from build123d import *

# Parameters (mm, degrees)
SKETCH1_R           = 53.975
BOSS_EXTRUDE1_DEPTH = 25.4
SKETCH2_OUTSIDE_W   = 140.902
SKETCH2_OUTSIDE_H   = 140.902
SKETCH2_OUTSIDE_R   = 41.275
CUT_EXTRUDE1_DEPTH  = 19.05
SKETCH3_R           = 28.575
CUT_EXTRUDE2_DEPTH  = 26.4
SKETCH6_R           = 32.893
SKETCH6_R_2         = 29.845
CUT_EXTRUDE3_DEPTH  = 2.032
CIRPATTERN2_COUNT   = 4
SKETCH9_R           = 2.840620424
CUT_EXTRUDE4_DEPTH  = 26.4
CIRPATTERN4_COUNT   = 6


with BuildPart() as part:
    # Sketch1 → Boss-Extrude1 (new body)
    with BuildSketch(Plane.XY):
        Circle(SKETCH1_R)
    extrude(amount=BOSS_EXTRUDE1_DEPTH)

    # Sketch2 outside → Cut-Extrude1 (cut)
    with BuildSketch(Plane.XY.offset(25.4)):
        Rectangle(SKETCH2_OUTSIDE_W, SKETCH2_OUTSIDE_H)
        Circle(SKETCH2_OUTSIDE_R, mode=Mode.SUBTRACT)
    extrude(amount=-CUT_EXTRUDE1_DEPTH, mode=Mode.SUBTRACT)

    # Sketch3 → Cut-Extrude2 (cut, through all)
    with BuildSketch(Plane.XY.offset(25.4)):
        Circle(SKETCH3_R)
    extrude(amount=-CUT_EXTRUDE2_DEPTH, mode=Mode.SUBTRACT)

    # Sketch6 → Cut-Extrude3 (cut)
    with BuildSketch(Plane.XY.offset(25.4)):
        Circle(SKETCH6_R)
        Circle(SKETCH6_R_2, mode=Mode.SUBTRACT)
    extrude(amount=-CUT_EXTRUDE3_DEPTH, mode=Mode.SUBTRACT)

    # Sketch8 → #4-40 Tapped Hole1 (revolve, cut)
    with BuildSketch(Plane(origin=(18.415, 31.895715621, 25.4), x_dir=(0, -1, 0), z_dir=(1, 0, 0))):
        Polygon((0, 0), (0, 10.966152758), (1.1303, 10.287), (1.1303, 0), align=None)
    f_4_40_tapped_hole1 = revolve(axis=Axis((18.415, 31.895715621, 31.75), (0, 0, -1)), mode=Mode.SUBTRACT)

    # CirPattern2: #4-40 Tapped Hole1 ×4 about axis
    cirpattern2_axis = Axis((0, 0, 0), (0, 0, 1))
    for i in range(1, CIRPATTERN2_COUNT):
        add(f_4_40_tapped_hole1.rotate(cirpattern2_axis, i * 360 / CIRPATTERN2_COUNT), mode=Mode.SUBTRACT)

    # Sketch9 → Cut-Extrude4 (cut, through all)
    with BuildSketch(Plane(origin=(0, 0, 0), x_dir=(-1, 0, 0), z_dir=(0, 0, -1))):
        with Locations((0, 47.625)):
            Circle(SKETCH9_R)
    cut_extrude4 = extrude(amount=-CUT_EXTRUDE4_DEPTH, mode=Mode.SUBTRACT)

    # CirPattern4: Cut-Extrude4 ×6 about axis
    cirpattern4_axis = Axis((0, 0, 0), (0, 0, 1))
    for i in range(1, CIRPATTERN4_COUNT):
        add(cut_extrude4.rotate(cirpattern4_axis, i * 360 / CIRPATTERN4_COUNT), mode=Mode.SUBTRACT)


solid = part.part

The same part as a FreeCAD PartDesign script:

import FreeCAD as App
import Part
import Sketcher

V = App.Vector
Q = App.Units.Quantity


def add_polygon(sketch, points):
    """Adds a closed chain of lines whose ends are joined by coincident constraints."""
    first, n = sketch.GeometryCount, len(points)
    for a, b in zip(points, points[1:] + points[:1]):
        sketch.addGeometry(Part.LineSegment(App.Vector(*a, 0), App.Vector(*b, 0)), False)
    for i in range(n):
        sketch.addConstraint(Sketcher.Constraint("Coincident", first + i, 2, first + (i + 1) % n, 1))

doc = App.newDocument("Part")
body = doc.addObject("PartDesign::Body", "Body")

# Sketch on XY plane
sketch1 = body.newObject("Sketcher::SketchObject", "Sketch")
sketch1.AttachmentSupport = (doc.getObject("XY_Plane"), [""])
sketch1.MapMode = "FlatFace"
sketch1.addGeometry(Part.Circle(V(0, 0, 0), V(0, 0, 1), 53.975), False)
sketch1.addConstraint([
    Sketcher.Constraint("Coincident", 0, 3, -1, 1),
    Sketcher.Constraint("Diameter", 0, Q("4.25 in")),
])
pad1 = body.newObject("PartDesign::Pad", "Pad")
pad1.Profile = sketch1
pad1.Length = Q("1 in")

# Sketch on XY plane
sketch2 = body.newObject("Sketcher::SketchObject", "Sketch001")
sketch2.AttachmentSupport = (doc.getObject("XY_Plane"), [""])
sketch2.MapMode = "FlatFace"
sketch2.AttachmentOffset = App.Placement(V(0, 0, 1 * 25.4), App.Rotation())
add_polygon(sketch2, [(-70.451, 70.451), (-70.451, -70.451), (70.451, -70.451), (70.451, 70.451)])  # lines 0-3
sketch2.addGeometry(Part.Circle(V(0, 0, 0), V(0, 0, 1), 41.275), False)  # 4
sketch2.addConstraint([
    Sketcher.Constraint("Vertical", 0),
    Sketcher.Constraint("Horizontal", 1),
    Sketcher.Constraint("Vertical", 2),
    Sketcher.Constraint("Horizontal", 3),
    Sketcher.Constraint("Coincident", 4, 3, -1, 1),
    Sketcher.Constraint("Symmetric", 0, 2, 2, 2, -1, 1),
    Sketcher.Constraint("Equal", 3, 0),
    Sketcher.Constraint("Diameter", 4, Q("3.25 in")),
    Sketcher.Constraint("DistanceX", 1, 1, 1, 2, 140.902),
])
pocket1 = body.newObject("PartDesign::Pocket", "Pocket")
pocket1.Profile = sketch2
pocket1.Length = Q("0.75 in")

# Sketch on XY plane
sketch3 = body.newObject("Sketcher::SketchObject", "Sketch002")
sketch3.AttachmentSupport = (doc.getObject("XY_Plane"), [""])
sketch3.MapMode = "FlatFace"
sketch3.AttachmentOffset = App.Placement(V(0, 0, 1 * 25.4), App.Rotation())
sketch3.addGeometry(Part.Circle(V(0, 0, 0), V(0, 0, 1), 28.575), False)
sketch3.addConstraint([
    Sketcher.Constraint("Coincident", 0, 3, -1, 1),
    Sketcher.Constraint("Diameter", 0, Q("2.25 in")),
])
pocket2 = body.newObject("PartDesign::Pocket", "Pocket001")
pocket2.Profile = sketch3
pocket2.Type = "ThroughAll"

# Sketch on XY plane
sketch4 = body.newObject("Sketcher::SketchObject", "Sketch003")
sketch4.AttachmentSupport = (doc.getObject("XY_Plane"), [""])
sketch4.MapMode = "FlatFace"
sketch4.AttachmentOffset = App.Placement(V(0, 0, 1 * 25.4), App.Rotation())
sketch4.addGeometry([
    Part.Circle(V(0, 0, 0), V(0, 0, 1), 32.893),
    Part.Circle(V(0, 0, 0), V(0, 0, 1), 29.845),
], False)
sketch4.addConstraint([
    Sketcher.Constraint("Coincident", 0, 3, -1, 1),
    Sketcher.Constraint("Coincident", 1, 3, -1, 1),
    Sketcher.Constraint("Diameter", 0, Q("2.59 in")),
    Sketcher.Constraint("Diameter", 1, Q("2.35 in")),
])
pocket3 = body.newObject("PartDesign::Pocket", "Pocket002")
pocket3.Profile = sketch4
pocket3.Length = Q("0.08 in")

# Sketch on YZ plane
sketch5 = body.newObject("Sketcher::SketchObject", "Sketch004")
sketch5.AttachmentSupport = (doc.getObject("YZ_Plane"), [""])
sketch5.MapMode = "FlatFace"
sketch5.AttachmentOffset = App.Placement(V(0, 0, 0.725 * 25.4), App.Rotation())
add_polygon(sketch5, [(31.895716, 14.433847), (31.895716, 25.4), (30.765416, 25.4), (30.765416, 15.113)])  # lines 0-3
sketch5.addGeometry(Part.LineSegment(V(31.895716, 25.4, 0), V(31.895716, 14.433847, 0)), True)  # axis
sketch5.addConstraint([
    Sketcher.Constraint("Vertical", 0),
    Sketcher.Constraint("Horizontal", 1),
    Sketcher.Constraint("Vertical", 2),
    Sketcher.Constraint("Vertical", 4),
    Sketcher.Constraint("Coincident", 4, 1, 0, 2),
    Sketcher.Constraint("Equal", 0, 4),
    Sketcher.Constraint("DistanceY", -1, 1, 0, 2, Q("1 in")),
    Sketcher.Constraint("Angle", 3, Q("-31 deg")),
    Sketcher.Constraint("DistanceY", 2, 2, 2, 1, Q("0.405 in")),
    Sketcher.Constraint("DistanceX", 1, 2, 1, 1, Q("0.0445 in")),
    Sketcher.Constraint("DistanceX", -1, 1, 0, 2, 31.895716),
])
groove = body.newObject("PartDesign::Groove", "Groove")
groove.Profile = sketch5
groove.ReferenceAxis = (sketch5, ["Axis0"])
groove.Angle = 360
doc.recompute()

polarpattern = body.newObject("PartDesign::PolarPattern", "PolarPattern")
polarpattern.Originals = [groove]
polarpattern.Axis = (doc.getObject("Z_Axis"), [""])
polarpattern.Angle = 360
polarpattern.Occurrences = 4
body.Tip = polarpattern

# Sketch on XY plane
sketch6 = body.newObject("Sketcher::SketchObject", "Sketch005")
sketch6.AttachmentSupport = (doc.getObject("XY_Plane"), [""])
sketch6.MapMode = "FlatFace"
sketch6.addGeometry(Part.Circle(V(0, 47.625, 0), V(0, 0, 1), 2.84062), False)
sketch6.addConstraint([
    Sketcher.Constraint("PointOnObject", 0, 3, -2),
    Sketcher.Constraint("Diameter", 0, 5.681241),
    Sketcher.Constraint("DistanceY", -1, 1, 0, 3, Q("1.875 in")),
])
pocket4 = body.newObject("PartDesign::Pocket", "Pocket003")
pocket4.Profile = sketch6
pocket4.Type = "ThroughAll"
pocket4.Reversed = True
doc.recompute()

polarpattern2 = body.newObject("PartDesign::PolarPattern", "PolarPattern001")
polarpattern2.Originals = [pocket4]
polarpattern2.Axis = (doc.getObject("Z_Axis"), [""])
polarpattern2.Angle = 360
polarpattern2.Occurrences = 6
body.Tip = polarpattern2

doc.recompute()
